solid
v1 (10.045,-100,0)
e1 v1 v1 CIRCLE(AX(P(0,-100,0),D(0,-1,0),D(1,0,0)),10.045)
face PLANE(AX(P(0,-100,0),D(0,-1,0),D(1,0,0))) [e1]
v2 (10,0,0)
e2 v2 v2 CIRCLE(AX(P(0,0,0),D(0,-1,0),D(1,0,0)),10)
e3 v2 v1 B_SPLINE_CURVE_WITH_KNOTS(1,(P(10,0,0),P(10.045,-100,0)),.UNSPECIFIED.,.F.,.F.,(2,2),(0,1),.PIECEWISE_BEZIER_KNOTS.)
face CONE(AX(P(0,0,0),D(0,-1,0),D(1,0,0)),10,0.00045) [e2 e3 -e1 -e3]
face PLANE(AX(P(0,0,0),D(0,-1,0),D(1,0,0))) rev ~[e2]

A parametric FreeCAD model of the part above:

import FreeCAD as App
import Part
import Sketcher

V = App.Vector

doc = App.newDocument("Part")
body = doc.addObject("PartDesign::Body", "Body")

# Sketch on XZ plane
sketch1 = body.newObject("Sketcher::SketchObject", "Sketch")
sketch1.AttachmentSupport = (doc.getObject("XZ_Plane"), [""])
sketch1.MapMode = "FlatFace"
sketch1.addGeometry(Part.Circle(V(0, 0, 0), V(0, 0, 1), 10), False)
sketch1.addConstraint([
    Sketcher.Constraint("Coincident", 0, 3, -1, 1),
    Sketcher.Constraint("Diameter", 0, 20.0),
])

# Sketch on XZ plane
sketch2 = body.newObject("Sketcher::SketchObject", "Sketch001")
sketch2.AttachmentSupport = (doc.getObject("XZ_Plane"), [""])
sketch2.MapMode = "FlatFace"
sketch2.AttachmentOffset = App.Placement(V(0, 0, 100), App.Rotation())
sketch2.addGeometry(Part.Circle(V(0, 0, 0), V(0, 0, 1), 10), False)
sketch2.addConstraint([
    Sketcher.Constraint("Coincident", 0, 3, -1, 1),
    Sketcher.Constraint("Diameter", 0, 20.09),
])

additiveloft = body.newObject("PartDesign::AdditiveLoft", "AdditiveLoft")
additiveloft.Profile = sketch1
additiveloft.Sections = [sketch2]

doc.recompute()
